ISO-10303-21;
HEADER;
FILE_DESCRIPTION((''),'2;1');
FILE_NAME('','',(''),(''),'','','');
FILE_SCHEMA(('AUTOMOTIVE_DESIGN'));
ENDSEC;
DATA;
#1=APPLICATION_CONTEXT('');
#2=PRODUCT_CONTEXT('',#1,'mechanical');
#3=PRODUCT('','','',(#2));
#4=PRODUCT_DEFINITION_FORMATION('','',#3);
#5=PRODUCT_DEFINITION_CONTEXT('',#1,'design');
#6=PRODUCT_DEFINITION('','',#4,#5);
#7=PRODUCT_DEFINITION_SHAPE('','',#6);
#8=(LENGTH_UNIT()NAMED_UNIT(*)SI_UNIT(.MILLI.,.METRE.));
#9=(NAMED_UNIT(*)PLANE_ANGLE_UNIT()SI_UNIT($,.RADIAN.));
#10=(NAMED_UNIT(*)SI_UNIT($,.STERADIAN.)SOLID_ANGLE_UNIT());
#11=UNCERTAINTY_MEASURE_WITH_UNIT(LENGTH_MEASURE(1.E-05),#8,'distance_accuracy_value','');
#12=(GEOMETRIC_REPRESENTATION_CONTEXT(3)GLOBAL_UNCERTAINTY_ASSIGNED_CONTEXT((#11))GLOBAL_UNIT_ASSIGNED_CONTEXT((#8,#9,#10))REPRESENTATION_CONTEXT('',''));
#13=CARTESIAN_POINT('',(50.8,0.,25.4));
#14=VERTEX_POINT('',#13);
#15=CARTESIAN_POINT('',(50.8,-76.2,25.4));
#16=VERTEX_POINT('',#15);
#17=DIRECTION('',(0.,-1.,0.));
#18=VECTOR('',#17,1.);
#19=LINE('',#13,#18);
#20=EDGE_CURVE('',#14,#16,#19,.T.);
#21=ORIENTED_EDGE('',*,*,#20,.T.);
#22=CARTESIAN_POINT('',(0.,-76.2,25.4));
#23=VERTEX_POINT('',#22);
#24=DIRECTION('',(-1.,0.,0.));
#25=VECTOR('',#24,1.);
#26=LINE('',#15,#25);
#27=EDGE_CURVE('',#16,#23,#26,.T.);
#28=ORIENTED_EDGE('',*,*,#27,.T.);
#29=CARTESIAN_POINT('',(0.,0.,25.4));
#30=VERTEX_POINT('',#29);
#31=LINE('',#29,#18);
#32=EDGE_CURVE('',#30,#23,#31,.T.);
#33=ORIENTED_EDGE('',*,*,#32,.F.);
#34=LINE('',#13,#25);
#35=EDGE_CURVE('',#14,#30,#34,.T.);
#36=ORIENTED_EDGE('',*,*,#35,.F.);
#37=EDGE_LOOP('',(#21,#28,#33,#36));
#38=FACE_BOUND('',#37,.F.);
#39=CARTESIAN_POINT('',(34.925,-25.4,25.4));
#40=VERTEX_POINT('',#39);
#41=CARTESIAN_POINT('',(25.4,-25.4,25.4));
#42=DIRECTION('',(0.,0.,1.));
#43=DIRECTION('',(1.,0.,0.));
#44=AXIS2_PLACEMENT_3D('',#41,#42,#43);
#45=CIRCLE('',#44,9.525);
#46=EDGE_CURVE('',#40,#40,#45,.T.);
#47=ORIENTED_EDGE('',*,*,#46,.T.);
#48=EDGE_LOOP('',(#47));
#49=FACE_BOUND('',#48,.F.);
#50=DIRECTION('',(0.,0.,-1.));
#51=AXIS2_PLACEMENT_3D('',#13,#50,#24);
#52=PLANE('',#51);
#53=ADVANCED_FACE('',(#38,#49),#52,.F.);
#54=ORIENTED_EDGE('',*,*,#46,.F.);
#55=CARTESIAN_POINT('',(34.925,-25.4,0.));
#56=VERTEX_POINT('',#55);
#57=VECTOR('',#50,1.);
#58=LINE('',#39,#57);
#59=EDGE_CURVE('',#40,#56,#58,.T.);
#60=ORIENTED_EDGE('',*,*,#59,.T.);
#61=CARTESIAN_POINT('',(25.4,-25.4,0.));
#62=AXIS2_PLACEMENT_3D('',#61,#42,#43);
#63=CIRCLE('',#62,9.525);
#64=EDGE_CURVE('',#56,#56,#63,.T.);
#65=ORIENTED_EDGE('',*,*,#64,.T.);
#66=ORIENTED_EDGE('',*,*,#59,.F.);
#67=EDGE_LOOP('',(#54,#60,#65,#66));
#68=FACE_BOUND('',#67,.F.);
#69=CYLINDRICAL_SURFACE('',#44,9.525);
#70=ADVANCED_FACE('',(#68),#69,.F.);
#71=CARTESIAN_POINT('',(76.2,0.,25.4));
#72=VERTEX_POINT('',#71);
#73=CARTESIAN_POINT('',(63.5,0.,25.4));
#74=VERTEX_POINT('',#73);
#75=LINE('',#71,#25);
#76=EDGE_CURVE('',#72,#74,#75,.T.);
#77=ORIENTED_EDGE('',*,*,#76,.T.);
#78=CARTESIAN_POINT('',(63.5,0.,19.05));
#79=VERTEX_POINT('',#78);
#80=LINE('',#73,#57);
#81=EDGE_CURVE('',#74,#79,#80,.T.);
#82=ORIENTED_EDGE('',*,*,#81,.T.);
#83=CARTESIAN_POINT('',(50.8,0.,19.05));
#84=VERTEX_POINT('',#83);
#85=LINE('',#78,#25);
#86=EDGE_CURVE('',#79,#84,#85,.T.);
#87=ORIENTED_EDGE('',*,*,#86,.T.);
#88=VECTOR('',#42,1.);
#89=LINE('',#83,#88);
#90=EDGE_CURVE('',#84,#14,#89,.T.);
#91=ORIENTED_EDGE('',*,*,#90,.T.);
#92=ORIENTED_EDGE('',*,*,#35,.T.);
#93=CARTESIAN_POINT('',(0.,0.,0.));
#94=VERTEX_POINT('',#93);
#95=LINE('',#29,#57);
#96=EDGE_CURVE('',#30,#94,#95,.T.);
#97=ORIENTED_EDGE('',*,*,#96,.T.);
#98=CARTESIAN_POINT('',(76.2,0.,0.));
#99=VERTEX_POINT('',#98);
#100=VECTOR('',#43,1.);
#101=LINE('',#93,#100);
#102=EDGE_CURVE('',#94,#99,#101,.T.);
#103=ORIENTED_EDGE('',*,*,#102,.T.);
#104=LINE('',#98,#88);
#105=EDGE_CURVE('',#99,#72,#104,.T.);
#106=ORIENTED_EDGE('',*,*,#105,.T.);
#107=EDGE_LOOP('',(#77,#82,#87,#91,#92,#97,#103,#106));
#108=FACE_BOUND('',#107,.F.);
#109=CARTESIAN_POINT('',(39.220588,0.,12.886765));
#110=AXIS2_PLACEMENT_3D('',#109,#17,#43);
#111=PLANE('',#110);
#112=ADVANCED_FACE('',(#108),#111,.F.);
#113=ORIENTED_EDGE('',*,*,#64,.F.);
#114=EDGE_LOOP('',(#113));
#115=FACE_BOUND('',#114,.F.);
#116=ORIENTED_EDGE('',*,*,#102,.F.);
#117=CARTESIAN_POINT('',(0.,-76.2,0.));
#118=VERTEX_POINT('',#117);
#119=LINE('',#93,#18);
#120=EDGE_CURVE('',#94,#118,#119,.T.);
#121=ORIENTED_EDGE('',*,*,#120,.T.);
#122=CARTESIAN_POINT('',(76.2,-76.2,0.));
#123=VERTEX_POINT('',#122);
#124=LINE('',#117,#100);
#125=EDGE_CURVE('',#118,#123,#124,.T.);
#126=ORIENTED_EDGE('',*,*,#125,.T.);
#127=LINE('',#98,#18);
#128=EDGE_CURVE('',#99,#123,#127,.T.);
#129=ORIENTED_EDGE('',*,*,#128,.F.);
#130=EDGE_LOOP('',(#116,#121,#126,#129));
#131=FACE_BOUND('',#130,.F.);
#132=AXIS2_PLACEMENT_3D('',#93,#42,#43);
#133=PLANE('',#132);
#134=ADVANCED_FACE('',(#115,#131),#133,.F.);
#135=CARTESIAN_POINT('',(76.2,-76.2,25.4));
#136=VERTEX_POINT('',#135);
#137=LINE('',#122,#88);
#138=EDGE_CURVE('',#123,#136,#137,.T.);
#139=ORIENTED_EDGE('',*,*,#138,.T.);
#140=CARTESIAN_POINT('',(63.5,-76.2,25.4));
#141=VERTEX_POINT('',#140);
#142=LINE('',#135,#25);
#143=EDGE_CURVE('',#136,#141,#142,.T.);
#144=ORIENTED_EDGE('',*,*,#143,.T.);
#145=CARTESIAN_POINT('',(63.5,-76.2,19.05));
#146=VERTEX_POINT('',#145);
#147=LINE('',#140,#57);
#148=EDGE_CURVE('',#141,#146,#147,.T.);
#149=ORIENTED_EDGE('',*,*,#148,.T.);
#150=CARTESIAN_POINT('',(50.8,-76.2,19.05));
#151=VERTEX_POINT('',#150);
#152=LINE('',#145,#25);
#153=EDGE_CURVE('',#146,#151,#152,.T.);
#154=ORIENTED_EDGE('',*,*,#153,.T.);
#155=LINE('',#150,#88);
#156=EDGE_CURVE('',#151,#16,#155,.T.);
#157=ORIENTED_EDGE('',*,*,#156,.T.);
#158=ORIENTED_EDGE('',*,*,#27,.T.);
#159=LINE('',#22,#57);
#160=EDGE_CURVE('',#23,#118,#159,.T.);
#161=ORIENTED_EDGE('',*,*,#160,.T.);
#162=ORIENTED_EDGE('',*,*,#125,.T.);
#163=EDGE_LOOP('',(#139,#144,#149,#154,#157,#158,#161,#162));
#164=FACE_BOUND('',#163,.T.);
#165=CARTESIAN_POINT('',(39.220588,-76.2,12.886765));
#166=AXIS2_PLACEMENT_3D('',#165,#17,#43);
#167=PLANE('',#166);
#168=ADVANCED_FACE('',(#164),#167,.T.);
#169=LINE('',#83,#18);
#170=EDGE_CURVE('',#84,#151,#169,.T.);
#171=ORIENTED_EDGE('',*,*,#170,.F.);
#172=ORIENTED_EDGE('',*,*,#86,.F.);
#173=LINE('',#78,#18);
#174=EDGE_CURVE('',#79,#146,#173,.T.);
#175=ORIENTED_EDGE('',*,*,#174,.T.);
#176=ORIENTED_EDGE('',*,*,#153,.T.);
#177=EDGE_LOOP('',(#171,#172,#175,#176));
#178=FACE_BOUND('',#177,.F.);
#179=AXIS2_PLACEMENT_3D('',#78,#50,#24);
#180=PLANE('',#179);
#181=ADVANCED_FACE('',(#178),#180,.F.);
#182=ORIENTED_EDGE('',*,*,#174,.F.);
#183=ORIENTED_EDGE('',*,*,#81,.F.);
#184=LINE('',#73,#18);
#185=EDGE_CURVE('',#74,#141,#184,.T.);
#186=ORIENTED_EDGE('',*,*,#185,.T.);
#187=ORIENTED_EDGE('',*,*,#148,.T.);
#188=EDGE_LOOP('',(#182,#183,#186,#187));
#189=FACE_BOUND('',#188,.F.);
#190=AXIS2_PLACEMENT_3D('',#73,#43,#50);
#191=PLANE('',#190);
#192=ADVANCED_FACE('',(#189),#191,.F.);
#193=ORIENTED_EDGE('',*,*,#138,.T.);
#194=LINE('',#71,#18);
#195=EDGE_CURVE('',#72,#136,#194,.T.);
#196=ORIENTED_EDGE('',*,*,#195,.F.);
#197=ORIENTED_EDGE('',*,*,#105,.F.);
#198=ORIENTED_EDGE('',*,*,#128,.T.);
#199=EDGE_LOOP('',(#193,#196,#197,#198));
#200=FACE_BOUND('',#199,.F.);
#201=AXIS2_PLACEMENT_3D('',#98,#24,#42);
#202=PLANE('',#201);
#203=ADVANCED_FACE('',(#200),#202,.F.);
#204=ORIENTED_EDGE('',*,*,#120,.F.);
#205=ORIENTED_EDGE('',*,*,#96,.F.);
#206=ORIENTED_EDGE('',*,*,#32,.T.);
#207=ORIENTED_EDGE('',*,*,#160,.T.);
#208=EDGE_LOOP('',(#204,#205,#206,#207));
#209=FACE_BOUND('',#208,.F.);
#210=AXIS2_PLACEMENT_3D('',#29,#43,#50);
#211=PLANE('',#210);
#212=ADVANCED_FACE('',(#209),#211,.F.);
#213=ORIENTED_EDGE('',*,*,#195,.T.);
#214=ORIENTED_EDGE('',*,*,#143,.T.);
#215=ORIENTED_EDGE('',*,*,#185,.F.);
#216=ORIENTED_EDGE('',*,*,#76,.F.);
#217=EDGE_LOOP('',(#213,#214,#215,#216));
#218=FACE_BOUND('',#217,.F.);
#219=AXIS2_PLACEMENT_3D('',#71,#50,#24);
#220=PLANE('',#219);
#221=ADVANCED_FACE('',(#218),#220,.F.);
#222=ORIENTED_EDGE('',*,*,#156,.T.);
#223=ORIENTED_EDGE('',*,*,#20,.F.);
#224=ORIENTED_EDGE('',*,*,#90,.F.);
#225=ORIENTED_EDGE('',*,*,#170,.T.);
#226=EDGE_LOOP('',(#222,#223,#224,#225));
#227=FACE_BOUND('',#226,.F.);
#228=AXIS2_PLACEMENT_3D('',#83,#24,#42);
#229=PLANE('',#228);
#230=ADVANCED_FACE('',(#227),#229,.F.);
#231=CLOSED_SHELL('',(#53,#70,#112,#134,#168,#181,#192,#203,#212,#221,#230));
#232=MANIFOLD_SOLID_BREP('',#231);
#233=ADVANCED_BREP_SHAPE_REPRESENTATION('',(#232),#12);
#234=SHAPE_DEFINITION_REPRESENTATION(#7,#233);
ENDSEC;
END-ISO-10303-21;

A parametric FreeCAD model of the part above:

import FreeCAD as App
import Part
import Sketcher
from FreeCAD import Vector
Q = App.Units.Quantity

doc = App.newDocument("Part")
body = doc.addObject("PartDesign::Body", "Body")

# Sketch on XZ plane
sketch1 = body.newObject("Sketcher::SketchObject", "Sketch")
sketch1.AttachmentSupport = (doc.getObject("XZ_Plane"), [""])
sketch1.MapMode = "FlatFace"
sketch1.addGeometry(Part.LineSegment(Vector(0, 25.4, 0), Vector(0, 0, 0)), False)
sketch1.addGeometry(Part.LineSegment(Vector(0, 0, 0), Vector(76.2, 0, 0)), False)
sketch1.addGeometry(Part.LineSegment(Vector(76.2, 0, 0), Vector(76.2, 25.4, 0)), False)
sketch1.addGeometry(Part.LineSegment(Vector(76.2, 25.4, 0), Vector(63.5, 25.4, 0)), False)
sketch1.addGeometry(Part.LineSegment(Vector(63.5, 25.4, 0), Vector(63.5, 19.05, 0)), False)
sketch1.addGeometry(Part.LineSegment(Vector(63.5, 19.05, 0), Vector(50.8, 19.05, 0)), False)
sketch1.addGeometry(Part.LineSegment(Vector(50.8, 19.05, 0), Vector(50.8, 25.4, 0)), False)
sketch1.addGeometry(Part.LineSegment(Vector(50.8, 25.4, 0), Vector(0, 25.4, 0)), False)
sketch1.addConstraint(Sketcher.Constraint("Coincident", 0, 2, 1, 1))
sketch1.addConstraint(Sketcher.Constraint("Coincident", 1, 2, 2, 1))
sketch1.addConstraint(Sketcher.Constraint("Coincident", 2, 2, 3, 1))
sketch1.addConstraint(Sketcher.Constraint("Coincident", 3, 2, 4, 1))
sketch1.addConstraint(Sketcher.Constraint("Coincident", 4, 2, 5, 1))
sketch1.addConstraint(Sketcher.Constraint("Coincident", 5, 2, 6, 1))
sketch1.addConstraint(Sketcher.Constraint("Coincident", 6, 2, 7, 1))
sketch1.addConstraint(Sketcher.Constraint("Coincident", 7, 2, 0, 1))
sketch1.addConstraint(Sketcher.Constraint("Vertical", 0))
sketch1.addConstraint(Sketcher.Constraint("Horizontal", 1))
sketch1.addConstraint(Sketcher.Constraint("Vertical", 2))
sketch1.addConstraint(Sketcher.Constraint("Horizontal", 3))
sketch1.addConstraint(Sketcher.Constraint("Vertical", 4))
sketch1.addConstraint(Sketcher.Constraint("Horizontal", 5))
sketch1.addConstraint(Sketcher.Constraint("Vertical", 6))
sketch1.addConstraint(Sketcher.Constraint("Horizontal", 7))
sketch1.addConstraint(Sketcher.Constraint("Coincident", 0, 2, -1, 1))
sketch1.addConstraint(Sketcher.Constraint("Horizontal", 3, 2, 6, 2))
sketch1.addConstraint(Sketcher.Constraint("Equal", 3, 5))
sketch1.addConstraint(Sketcher.Constraint("DistanceX", 1, 1, 1, 2, Q("3 in")))
sketch1.addConstraint(Sketcher.Constraint("DistanceX", 7, 2, 7, 1, Q("2 in")))
sketch1.addConstraint(Sketcher.Constraint("DistanceY", 0, 2, 0, 1, Q("1 in")))
sketch1.addConstraint(Sketcher.Constraint("DistanceY", 4, 2, 4, 1, Q("0.25 in")))
pad1 = body.newObject("PartDesign::Pad", "Pad")
pad1.Profile = sketch1
pad1.Length = Q("3 in")

# Sketch on XY plane
sketch2 = body.newObject("Sketcher::SketchObject", "Sketch001")
sketch2.AttachmentSupport = (doc.getObject("XY_Plane"), [""])
sketch2.MapMode = "FlatFace"
sketch2.AttachmentOffset = App.Placement(Vector(0, 0, 1 * 25.4), App.Rotation())
sketch2.addGeometry(Part.Circle(Vector(25.4, -25.4, 0), Vector(0, 0, 1), 9.525), False)
sketch2.addConstraint(Sketcher.Constraint("Diameter", 0, Q("0.75 in")))
sketch2.addConstraint(Sketcher.Constraint("DistanceX", -1, 1, 0, 3, Q("1 in")))
sketch2.addConstraint(Sketcher.Constraint("DistanceY", 0, 3, -1, 1, Q("1 in")))
pocket1 = body.newObject("PartDesign::Pocket", "Pocket")
pocket1.Profile = sketch2
pocket1.Type = "ThroughAll"

doc.recompute()
